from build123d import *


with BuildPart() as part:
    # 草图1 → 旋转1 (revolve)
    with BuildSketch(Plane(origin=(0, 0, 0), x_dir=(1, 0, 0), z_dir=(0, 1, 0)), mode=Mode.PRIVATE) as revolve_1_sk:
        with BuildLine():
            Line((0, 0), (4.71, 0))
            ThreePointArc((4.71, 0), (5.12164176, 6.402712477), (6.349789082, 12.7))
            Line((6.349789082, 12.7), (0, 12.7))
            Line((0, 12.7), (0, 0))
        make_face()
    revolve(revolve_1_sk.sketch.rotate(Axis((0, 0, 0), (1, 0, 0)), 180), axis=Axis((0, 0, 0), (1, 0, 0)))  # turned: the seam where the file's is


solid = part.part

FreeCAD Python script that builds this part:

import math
import FreeCAD as App
import Part
import Sketcher
from FreeCAD import Vector

doc = App.newDocument("Part")
body = doc.addObject("PartDesign::Body", "Body")

# Sketch on XZ plane
sketch1 = body.newObject("Sketcher::SketchObject", "Sketch")
sketch1.AttachmentSupport = (doc.getObject("XZ_Plane"), [""])
sketch1.MapMode = "FlatFace"
sketch1.addGeometry([
    Part.LineSegment(Vector(0, 0, 0), Vector(4.7, 0, 0)),
    Part.ArcOfCircle(Part.Circle(Vector(54.7, 0, 0), Vector(0, 0, 1), 50), math.radians(-180), math.radians(-165.29)),
    Part.LineSegment(Vector(6.3, -12.7, 0), Vector(0, -12.7, 0)),
    Part.LineSegment(Vector(0, -12.7, 0), Vector(0, 0, 0)),
], False)
sketch1.addConstraint([
    Sketcher.Constraint("Coincident", 0, 2, 1, 1),
    Sketcher.Constraint("Coincident", 1, 2, 2, 1),
    Sketcher.Constraint("Coincident", 2, 2, 3, 1),
    Sketcher.Constraint("Coincident", 3, 2, 0, 1),
    Sketcher.Constraint("Horizontal", 0),
    Sketcher.Constraint("Horizontal", 2),
    Sketcher.Constraint("Vertical", 3),
    Sketcher.Constraint("Coincident", 3, 2, -1, 1),
    Sketcher.Constraint("PointOnObject", 1, 3, -1),
    Sketcher.Constraint("Radius", 1, 50.0),
    Sketcher.Constraint("DistanceY", 3, 1, 3, 2, 12.7),
    Sketcher.Constraint("DistanceX", 0, 1, 0, 2, 4.71),
])
revolution = body.newObject("PartDesign::Revolution", "Revolution")
revolution.Profile = sketch1
revolution.ReferenceAxis = (sketch1, ["H_Axis"])
revolution.Angle = 360

doc.recompute()
